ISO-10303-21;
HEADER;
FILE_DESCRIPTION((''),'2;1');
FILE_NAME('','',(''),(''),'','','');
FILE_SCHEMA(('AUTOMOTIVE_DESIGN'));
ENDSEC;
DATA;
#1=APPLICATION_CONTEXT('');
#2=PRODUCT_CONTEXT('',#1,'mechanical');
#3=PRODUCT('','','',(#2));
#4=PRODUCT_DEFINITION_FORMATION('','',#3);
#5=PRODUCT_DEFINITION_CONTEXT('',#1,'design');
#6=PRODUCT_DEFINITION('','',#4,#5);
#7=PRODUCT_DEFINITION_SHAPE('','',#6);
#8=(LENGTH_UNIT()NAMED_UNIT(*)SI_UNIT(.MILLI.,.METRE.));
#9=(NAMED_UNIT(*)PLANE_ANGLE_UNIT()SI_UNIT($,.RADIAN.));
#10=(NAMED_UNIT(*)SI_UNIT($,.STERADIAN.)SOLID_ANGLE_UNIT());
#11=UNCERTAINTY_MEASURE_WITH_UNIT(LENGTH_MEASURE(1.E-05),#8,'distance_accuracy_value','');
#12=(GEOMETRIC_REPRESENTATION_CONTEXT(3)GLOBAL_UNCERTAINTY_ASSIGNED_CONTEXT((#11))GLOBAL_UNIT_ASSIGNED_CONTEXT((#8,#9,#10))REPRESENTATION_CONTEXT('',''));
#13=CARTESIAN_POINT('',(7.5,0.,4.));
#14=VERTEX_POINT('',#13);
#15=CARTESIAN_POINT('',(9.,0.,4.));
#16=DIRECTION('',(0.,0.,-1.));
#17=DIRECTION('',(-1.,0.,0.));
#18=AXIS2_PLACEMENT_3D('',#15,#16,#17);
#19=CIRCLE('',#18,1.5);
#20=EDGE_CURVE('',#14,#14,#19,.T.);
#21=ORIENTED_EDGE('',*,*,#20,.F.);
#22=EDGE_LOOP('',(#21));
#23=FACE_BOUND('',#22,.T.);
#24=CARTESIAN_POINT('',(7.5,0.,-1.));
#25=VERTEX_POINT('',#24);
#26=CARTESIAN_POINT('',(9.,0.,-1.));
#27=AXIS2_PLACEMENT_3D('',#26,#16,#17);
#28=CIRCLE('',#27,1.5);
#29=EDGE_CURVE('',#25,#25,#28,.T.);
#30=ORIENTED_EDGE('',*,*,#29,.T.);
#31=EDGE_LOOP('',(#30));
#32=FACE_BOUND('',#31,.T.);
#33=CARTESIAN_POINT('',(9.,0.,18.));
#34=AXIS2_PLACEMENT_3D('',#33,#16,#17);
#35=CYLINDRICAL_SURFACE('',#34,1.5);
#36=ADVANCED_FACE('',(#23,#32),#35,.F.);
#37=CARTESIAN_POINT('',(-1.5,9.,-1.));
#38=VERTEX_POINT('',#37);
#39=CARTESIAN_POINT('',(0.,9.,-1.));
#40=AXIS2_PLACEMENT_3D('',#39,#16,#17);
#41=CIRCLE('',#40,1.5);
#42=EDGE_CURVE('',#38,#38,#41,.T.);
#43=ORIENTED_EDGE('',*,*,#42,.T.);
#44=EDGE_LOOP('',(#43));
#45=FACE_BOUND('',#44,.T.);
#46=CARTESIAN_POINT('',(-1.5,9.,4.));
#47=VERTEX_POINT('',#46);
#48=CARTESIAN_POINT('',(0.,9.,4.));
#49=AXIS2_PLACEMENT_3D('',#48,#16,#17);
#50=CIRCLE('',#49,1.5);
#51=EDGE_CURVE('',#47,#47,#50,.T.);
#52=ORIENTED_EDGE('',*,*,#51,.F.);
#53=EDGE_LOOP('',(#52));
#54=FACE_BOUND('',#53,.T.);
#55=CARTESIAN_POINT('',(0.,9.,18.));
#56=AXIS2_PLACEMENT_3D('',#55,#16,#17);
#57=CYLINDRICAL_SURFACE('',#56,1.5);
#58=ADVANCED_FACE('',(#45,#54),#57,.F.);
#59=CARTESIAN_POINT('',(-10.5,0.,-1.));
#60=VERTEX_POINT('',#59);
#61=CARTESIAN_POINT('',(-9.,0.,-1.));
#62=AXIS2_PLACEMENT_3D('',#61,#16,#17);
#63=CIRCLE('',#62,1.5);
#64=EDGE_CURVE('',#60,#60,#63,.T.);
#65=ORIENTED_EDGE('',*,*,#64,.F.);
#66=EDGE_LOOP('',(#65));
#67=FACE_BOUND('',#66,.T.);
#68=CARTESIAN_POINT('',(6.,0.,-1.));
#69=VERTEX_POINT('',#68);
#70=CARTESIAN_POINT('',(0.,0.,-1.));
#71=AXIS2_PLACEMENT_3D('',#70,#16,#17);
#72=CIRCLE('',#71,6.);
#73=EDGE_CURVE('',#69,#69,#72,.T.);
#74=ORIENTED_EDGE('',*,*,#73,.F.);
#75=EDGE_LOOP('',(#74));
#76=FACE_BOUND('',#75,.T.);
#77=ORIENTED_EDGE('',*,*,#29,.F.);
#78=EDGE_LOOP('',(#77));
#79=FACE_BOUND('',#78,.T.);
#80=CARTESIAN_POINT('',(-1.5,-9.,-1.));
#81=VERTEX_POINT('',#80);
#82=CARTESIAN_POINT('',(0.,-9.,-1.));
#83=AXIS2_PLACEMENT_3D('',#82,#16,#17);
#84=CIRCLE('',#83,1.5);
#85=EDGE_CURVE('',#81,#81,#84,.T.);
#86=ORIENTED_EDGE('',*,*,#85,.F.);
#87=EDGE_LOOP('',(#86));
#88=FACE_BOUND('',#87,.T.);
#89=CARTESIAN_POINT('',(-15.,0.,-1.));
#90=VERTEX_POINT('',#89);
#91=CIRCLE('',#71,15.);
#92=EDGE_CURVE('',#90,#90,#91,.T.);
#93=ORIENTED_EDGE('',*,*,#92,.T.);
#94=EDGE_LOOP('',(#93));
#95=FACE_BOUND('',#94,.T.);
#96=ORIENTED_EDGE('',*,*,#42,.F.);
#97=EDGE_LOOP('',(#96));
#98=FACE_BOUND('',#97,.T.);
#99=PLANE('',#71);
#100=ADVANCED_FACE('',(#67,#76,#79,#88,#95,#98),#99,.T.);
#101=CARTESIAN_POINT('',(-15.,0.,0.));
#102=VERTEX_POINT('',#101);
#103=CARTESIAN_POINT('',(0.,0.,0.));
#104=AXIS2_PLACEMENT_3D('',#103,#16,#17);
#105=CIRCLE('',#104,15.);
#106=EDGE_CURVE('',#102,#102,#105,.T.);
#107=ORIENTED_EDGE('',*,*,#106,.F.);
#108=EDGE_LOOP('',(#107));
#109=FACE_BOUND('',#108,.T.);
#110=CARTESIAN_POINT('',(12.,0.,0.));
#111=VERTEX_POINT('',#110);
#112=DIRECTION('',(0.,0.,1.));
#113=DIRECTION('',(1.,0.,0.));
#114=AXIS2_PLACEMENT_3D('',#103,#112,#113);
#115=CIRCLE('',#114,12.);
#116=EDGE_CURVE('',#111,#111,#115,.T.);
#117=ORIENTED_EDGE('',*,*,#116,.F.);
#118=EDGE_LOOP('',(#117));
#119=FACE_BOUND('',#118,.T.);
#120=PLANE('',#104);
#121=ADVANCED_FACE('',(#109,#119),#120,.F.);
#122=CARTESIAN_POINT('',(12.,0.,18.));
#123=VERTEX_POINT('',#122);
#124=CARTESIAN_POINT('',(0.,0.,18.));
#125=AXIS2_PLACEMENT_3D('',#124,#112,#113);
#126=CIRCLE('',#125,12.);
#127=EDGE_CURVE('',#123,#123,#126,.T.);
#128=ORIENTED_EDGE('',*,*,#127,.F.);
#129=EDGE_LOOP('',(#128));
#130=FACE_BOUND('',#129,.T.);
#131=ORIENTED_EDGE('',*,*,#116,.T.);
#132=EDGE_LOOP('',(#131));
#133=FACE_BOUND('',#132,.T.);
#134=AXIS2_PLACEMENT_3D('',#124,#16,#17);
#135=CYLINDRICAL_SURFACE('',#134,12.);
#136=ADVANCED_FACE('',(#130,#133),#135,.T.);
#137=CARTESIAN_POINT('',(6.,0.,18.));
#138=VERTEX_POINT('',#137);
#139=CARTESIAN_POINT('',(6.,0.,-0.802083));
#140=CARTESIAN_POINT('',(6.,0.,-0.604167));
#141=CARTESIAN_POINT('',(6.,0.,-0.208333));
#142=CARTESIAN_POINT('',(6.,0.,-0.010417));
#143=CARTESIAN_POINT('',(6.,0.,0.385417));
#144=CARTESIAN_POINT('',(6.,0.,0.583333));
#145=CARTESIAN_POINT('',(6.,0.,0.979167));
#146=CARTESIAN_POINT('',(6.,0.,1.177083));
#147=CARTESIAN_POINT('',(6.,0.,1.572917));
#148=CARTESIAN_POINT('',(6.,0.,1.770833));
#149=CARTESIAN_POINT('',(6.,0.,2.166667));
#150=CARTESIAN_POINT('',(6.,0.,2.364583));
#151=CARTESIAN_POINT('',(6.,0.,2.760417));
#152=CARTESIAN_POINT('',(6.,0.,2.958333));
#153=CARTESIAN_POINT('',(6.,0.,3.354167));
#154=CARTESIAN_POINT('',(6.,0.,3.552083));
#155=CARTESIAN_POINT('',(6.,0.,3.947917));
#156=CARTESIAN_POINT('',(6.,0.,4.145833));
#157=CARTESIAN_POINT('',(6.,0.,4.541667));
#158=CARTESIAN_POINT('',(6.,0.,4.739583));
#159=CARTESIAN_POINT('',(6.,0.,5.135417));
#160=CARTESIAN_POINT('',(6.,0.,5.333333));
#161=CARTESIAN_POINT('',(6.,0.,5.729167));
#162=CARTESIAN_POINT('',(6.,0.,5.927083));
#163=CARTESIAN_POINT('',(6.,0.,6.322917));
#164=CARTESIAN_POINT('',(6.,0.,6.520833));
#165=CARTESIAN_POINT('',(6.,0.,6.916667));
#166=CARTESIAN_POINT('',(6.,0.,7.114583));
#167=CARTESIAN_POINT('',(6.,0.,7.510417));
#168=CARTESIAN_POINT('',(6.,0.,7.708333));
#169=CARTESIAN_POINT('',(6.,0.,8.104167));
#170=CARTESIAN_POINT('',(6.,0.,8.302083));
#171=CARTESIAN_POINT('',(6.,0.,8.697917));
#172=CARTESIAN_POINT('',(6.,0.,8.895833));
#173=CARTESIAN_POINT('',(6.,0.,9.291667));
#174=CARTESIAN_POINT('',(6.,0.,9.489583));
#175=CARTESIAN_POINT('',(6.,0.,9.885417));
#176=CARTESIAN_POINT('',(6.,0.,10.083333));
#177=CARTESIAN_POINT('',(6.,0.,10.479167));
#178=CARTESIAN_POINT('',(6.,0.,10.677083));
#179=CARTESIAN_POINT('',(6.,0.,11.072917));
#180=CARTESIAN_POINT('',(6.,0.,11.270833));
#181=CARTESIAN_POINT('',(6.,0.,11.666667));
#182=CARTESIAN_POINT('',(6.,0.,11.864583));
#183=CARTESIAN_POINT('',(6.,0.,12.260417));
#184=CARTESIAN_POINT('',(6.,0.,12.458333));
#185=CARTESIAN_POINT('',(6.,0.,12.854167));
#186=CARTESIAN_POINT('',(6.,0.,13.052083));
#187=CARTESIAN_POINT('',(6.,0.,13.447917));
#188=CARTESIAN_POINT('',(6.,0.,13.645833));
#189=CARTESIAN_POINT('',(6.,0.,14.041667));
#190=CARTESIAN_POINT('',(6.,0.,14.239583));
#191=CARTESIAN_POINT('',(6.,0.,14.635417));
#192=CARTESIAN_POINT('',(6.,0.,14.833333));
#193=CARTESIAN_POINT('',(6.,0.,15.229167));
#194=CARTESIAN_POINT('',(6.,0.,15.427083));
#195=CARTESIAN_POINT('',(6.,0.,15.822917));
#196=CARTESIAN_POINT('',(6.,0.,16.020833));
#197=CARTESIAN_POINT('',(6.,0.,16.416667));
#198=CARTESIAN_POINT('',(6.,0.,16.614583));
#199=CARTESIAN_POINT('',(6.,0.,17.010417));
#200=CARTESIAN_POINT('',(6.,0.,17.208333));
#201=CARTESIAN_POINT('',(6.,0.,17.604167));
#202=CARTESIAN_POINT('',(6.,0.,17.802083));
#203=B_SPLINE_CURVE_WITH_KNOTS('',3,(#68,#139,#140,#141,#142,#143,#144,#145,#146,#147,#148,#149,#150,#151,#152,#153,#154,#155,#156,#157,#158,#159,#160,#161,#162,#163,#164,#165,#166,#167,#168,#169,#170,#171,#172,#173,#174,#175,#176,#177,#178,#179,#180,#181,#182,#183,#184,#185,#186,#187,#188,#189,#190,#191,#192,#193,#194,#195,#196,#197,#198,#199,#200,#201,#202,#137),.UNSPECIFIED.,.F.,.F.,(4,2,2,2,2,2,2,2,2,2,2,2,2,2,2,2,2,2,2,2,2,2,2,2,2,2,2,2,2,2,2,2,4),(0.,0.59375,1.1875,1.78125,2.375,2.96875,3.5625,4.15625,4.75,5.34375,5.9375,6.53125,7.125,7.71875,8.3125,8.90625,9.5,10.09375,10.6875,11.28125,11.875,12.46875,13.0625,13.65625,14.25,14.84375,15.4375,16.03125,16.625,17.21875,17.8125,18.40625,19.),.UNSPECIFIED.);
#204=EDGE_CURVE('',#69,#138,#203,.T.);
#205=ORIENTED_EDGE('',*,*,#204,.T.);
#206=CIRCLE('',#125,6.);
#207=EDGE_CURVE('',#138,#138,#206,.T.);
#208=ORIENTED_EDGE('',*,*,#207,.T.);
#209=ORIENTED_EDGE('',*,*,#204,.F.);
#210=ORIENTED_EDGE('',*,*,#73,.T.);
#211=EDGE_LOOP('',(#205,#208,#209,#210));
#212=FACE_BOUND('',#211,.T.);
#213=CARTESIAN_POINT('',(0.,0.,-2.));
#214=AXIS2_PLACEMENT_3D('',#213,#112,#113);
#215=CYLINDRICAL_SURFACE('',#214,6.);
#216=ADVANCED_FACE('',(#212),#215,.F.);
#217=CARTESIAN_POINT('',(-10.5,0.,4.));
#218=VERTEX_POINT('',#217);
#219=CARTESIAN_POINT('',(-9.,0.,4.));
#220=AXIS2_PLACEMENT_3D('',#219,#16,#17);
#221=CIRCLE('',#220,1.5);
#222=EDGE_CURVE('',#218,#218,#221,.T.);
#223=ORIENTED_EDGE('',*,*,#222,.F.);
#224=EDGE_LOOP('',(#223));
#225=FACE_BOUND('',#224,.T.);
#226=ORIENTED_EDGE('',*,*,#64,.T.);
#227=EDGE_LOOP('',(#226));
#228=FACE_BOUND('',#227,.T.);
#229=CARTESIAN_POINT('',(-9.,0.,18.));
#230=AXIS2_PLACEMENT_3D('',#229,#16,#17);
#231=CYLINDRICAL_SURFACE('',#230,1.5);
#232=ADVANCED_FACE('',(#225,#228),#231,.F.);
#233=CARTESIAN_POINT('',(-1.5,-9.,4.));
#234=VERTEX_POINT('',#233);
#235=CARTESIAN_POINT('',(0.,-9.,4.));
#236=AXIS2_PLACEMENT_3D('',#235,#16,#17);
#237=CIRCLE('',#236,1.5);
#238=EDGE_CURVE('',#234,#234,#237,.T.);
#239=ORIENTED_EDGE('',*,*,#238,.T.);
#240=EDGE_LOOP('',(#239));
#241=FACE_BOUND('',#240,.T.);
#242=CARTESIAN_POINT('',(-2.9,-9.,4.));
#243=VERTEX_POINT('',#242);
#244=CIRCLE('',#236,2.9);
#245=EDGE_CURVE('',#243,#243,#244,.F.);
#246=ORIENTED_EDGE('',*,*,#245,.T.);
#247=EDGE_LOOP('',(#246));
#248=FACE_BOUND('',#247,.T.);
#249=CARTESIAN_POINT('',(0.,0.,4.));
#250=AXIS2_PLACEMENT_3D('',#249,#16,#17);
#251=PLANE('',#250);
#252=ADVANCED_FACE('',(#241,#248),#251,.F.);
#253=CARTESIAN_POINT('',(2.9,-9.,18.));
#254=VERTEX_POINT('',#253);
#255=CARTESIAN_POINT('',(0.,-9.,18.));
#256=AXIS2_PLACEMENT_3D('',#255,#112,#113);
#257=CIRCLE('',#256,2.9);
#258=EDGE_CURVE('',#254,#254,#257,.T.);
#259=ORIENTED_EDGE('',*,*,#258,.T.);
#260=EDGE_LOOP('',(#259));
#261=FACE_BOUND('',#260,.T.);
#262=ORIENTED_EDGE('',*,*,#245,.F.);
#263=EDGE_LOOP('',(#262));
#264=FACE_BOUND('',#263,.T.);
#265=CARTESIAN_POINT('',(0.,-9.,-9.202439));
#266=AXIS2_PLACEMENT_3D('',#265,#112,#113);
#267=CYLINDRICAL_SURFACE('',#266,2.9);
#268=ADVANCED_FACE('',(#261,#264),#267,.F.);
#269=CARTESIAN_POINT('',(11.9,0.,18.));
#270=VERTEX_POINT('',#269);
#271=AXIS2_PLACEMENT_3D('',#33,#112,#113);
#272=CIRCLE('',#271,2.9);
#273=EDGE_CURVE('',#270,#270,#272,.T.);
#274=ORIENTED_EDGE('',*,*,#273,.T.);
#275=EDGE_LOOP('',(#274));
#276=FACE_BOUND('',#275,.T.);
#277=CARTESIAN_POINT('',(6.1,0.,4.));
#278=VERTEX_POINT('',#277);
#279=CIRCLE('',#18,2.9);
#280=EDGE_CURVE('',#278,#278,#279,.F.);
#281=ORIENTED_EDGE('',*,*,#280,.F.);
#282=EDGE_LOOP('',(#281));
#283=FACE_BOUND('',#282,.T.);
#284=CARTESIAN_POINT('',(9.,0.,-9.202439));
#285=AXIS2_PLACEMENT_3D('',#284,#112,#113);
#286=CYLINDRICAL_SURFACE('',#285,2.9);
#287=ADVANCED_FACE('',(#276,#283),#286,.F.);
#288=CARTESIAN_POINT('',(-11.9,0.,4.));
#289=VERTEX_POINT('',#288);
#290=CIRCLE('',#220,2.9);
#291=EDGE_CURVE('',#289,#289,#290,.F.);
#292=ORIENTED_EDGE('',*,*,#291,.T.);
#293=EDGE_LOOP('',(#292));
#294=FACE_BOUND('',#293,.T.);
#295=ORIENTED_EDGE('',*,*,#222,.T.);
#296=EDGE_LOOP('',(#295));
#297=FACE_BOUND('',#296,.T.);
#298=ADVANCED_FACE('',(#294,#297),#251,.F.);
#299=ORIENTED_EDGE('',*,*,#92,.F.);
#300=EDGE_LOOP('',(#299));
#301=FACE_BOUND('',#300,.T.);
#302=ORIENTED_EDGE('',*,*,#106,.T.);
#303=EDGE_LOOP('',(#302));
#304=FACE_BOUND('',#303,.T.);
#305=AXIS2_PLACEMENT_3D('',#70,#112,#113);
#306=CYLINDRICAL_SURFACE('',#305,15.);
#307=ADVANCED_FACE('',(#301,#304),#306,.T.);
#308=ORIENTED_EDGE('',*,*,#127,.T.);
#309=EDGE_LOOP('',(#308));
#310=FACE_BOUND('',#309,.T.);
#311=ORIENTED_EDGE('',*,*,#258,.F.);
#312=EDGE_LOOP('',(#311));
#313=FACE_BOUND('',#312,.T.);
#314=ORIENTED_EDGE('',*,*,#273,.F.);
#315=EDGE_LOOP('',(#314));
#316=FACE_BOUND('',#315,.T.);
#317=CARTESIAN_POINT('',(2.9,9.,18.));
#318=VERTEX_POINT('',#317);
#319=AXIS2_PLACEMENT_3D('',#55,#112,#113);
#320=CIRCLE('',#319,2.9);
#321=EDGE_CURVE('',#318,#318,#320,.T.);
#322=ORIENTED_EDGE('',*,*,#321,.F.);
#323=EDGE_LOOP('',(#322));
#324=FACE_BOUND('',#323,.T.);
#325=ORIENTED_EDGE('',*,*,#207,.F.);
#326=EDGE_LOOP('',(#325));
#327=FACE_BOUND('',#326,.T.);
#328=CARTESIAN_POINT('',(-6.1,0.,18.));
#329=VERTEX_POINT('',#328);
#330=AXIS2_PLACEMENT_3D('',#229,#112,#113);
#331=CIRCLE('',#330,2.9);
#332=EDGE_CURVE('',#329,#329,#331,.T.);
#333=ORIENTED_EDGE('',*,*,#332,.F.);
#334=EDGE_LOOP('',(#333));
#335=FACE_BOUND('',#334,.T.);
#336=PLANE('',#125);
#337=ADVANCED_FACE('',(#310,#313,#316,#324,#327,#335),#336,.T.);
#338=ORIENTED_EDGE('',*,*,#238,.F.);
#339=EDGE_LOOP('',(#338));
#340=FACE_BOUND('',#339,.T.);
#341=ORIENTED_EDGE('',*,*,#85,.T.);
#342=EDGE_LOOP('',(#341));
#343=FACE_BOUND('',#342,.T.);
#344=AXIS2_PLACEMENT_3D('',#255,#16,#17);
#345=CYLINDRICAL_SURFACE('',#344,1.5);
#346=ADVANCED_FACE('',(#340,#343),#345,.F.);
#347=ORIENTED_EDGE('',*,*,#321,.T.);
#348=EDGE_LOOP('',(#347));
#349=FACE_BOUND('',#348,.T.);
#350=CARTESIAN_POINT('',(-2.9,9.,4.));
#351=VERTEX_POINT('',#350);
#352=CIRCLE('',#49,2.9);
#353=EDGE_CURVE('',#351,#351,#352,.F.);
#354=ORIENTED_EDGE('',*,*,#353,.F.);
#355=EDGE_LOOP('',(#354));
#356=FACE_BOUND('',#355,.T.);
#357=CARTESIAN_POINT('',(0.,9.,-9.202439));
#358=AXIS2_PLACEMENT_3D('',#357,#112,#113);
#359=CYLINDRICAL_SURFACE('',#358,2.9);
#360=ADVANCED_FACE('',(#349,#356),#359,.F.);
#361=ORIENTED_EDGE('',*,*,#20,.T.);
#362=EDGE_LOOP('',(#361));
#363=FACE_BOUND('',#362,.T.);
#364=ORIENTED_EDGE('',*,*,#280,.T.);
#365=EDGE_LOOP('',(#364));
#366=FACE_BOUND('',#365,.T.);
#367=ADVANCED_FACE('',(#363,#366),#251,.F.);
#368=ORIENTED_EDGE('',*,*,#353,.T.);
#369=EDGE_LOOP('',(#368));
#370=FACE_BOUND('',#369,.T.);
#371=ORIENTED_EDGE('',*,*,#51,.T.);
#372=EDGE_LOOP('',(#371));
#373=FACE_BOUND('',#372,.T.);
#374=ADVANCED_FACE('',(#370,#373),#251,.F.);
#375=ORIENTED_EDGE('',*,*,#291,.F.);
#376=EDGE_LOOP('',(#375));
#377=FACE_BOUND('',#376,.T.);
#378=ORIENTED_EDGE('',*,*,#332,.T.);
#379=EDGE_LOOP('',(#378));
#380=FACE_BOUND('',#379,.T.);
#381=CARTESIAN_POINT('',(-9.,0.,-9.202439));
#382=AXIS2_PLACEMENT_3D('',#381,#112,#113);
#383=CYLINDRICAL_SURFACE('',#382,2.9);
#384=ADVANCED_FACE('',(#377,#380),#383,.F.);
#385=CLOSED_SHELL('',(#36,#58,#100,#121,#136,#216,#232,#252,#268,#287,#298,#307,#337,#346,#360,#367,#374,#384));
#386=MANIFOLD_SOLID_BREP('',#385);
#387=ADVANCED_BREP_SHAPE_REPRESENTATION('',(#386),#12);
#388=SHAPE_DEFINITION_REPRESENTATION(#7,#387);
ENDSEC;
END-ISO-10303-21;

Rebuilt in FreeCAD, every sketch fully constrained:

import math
import FreeCAD as App
import Part
import Sketcher

V = App.Vector
Q = App.Units.Quantity

doc = App.newDocument("Part")
body = doc.addObject("PartDesign::Body", "Body")

# Sketch on XY plane
sketch1 = body.newObject("Sketcher::SketchObject", "Sketch")
sketch1.AttachmentSupport = (doc.getObject("XY_Plane"), [""])
sketch1.MapMode = "FlatFace"
sketch1.addGeometry(Part.Circle(V(0, 0, 0), V(0, 0, 1), 12), False)
sketch1.addGeometry(Part.Circle(V(0, -9, 0), V(0, 0, 1), 1.5), False)
sketch1.addGeometry(Part.Circle(V(-9, 0, 0), V(0, 0, 1), 1.5), False)
sketch1.addGeometry(Part.Circle(V(9, 0, 0), V(0, 0, 1), 1.5), False)
sketch1.addGeometry(Part.Circle(V(0, 9, 0), V(0, 0, 1), 1.5), False)
sketch1.addConstraint(Sketcher.Constraint("Coincident", 0, 3, -1, 1))
sketch1.addConstraint(Sketcher.Constraint("Equal", 1, 2))
sketch1.addConstraint(Sketcher.Constraint("Equal", 2, 3))
sketch1.addConstraint(Sketcher.Constraint("Equal", 3, 4))
sketch1.addConstraint(Sketcher.Constraint("Symmetric", 2, 3, 3, 3, -1, 1))
sketch1.addConstraint(Sketcher.Constraint("Symmetric", 1, 3, 4, 3, -1, 1))
sketch1.addConstraint(Sketcher.Constraint("PointOnObject", 1, 3, -2))
sketch1.addConstraint(Sketcher.Constraint("PointOnObject", 2, 3, -1))
sketch1.addConstraint(Sketcher.Constraint("Diameter", 0, Q("24 mm")))
sketch1.addConstraint(Sketcher.Constraint("Diameter", 1, Q("3 mm")))
sketch1.addConstraint(Sketcher.Constraint("DistanceY", 1, 3, -1, 1, Q("9 mm")))
sketch1.addConstraint(Sketcher.Constraint("DistanceX", 2, 3, -1, 1, Q("9 mm")))
pad1 = body.newObject("PartDesign::Pad", "Pad")
pad1.Profile = sketch1
pad1.Length = 18

# Sketch on XY plane
sketch2 = body.newObject("Sketcher::SketchObject", "Sketch001")
sketch2.AttachmentSupport = (doc.getObject("XY_Plane"), [""])
sketch2.MapMode = "FlatFace"
sketch2.AttachmentOffset = App.Placement(V(0, 0, -1), App.Rotation())
sketch2.addGeometry(Part.Circle(V(0, 0, 0), V(0, 0, 1), 15), False)
sketch2.addGeometry(Part.Circle(V(0, -9, 0), V(0, 0, 1), 1.5), False)
sketch2.addGeometry(Part.Circle(V(9, 0, 0), V(0, 0, 1), 1.5), False)
sketch2.addGeometry(Part.Circle(V(-9, 0, 0), V(0, 0, 1), 1.5), False)
sketch2.addGeometry(Part.Circle(V(0, 9, 0), V(0, 0, 1), 1.5), False)
sketch2.addConstraint(Sketcher.Constraint("Coincident", 0, 3, -1, 1))
sketch2.addConstraint(Sketcher.Constraint("Equal", 1, 2))
sketch2.addConstraint(Sketcher.Constraint("Equal", 2, 3))
sketch2.addConstraint(Sketcher.Constraint("Equal", 3, 4))
sketch2.addConstraint(Sketcher.Constraint("Symmetric", 2, 3, 3, 3, -1, 1))
sketch2.addConstraint(Sketcher.Constraint("Symmetric", 1, 3, 4, 3, -1, 1))
sketch2.addConstraint(Sketcher.Constraint("PointOnObject", 1, 3, -2))
sketch2.addConstraint(Sketcher.Constraint("PointOnObject", 2, 3, -1))
sketch2.addConstraint(Sketcher.Constraint("Diameter", 0, Q("30 mm")))
sketch2.addConstraint(Sketcher.Constraint("Diameter", 1, Q("3 mm")))
sketch2.addConstraint(Sketcher.Constraint("DistanceY", 1, 3, -1, 1, Q("9 mm")))
sketch2.addConstraint(Sketcher.Constraint("DistanceX", -1, 1, 2, 3, Q("9 mm")))
pad2 = body.newObject("PartDesign::Pad", "Pad001")
pad2.Profile = sketch2
pad2.Length = 1

# Sketch on XY plane
sketch3 = body.newObject("Sketcher::SketchObject", "Sketch002")
sketch3.AttachmentSupport = (doc.getObject("XY_Plane"), [""])
sketch3.MapMode = "FlatFace"
sketch3.AttachmentOffset = App.Placement(V(0, 0, 18), App.Rotation())
sketch3.addGeometry(Part.Circle(V(0, 9, 0), V(0, 0, 1), 2.9), False)
sketch3.addGeometry(Part.Circle(V(9, 0, 0), V(0, 0, 1), 2.9), False)
sketch3.addGeometry(Part.Circle(V(0, -9, 0), V(0, 0, 1), 2.9), False)
sketch3.addGeometry(Part.Circle(V(-9, 0, 0), V(0, 0, 1), 2.9), False)
sketch3.addConstraint(Sketcher.Constraint("Equal", 0, 1))
sketch3.addConstraint(Sketcher.Constraint("Equal", 1, 2))
sketch3.addConstraint(Sketcher.Constraint("Equal", 2, 3))
sketch3.addConstraint(Sketcher.Constraint("Symmetric", 0, 3, 2, 3, -1, 1))
sketch3.addConstraint(Sketcher.Constraint("Symmetric", 1, 3, 3, 3, -1, 1))
sketch3.addConstraint(Sketcher.Constraint("PointOnObject", 0, 3, -2))
sketch3.addConstraint(Sketcher.Constraint("PointOnObject", 1, 3, -1))
sketch3.addConstraint(Sketcher.Constraint("Diameter", 0, Q("5.8 mm")))
sketch3.addConstraint(Sketcher.Constraint("DistanceY", -1, 1, 0, 3, Q("9 mm")))
sketch3.addConstraint(Sketcher.Constraint("DistanceX", -1, 1, 1, 3, Q("9 mm")))
pocket1 = body.newObject("PartDesign::Pocket", "Pocket")
pocket1.Profile = sketch3
pocket1.Length = 14

# Sketch on XY plane
sketch4 = body.newObject("Sketcher::SketchObject", "Sketch003")
sketch4.AttachmentSupport = (doc.getObject("XY_Plane"), [""])
sketch4.MapMode = "FlatFace"
sketch4.AttachmentOffset = App.Placement(V(0, 0, 18), App.Rotation())
sketch4.addGeometry(Part.LineSegment(V(1.5, 2, 0), V(-1.5, 2, 0)), False)
sketch4.addGeometry(Part.ArcOfCircle(Part.Circle(V(0, 0, 0), V(0, 0, 1), 2.5), math.radians(127), math.radians(360)), False)
sketch4.addGeometry(Part.ArcOfCircle(Part.Circle(V(0, 0, 0), V(0, 0, 1), 2.5), math.radians(0), math.radians(53)), False)
sketch4.addConstraint(Sketcher.Constraint("Coincident", 0, 2, 1, 1))
sketch4.addConstraint(Sketcher.Constraint("Tangent", 1, 2, 2, 1))
sketch4.addConstraint(Sketcher.Constraint("Coincident", 2, 2, 0, 1))
sketch4.addConstraint(Sketcher.Constraint("Horizontal", 0))
sketch4.addConstraint(Sketcher.Constraint("Coincident", 1, 3, -1, 1))
sketch4.addConstraint(Sketcher.Constraint("Equal", 1, 2))
sketch4.addConstraint(Sketcher.Constraint("PointOnObject", 1, 2, -1))
sketch4.addConstraint(Sketcher.Constraint("Radius", 1, Q("2.5 mm")))
sketch4.addConstraint(Sketcher.Constraint("DistanceX", 0, 2, 0, 1, Q("3 mm")))
pocket2 = body.newObject("PartDesign::Pocket", "Pocket001")
pocket2.Profile = sketch4
pocket2.Length = 23

# Sketch on XY plane
sketch5 = body.newObject("Sketcher::SketchObject", "Sketch004")
sketch5.AttachmentSupport = (doc.getObject("XY_Plane"), [""])
sketch5.MapMode = "FlatFace"
sketch5.AttachmentOffset = App.Placement(V(0, 0, 18), App.Rotation())
sketch5.addGeometry(Part.Circle(V(0, 0, 0), V(0, 0, 1), 2.5), False)
sketch5.addConstraint(Sketcher.Constraint("Coincident", 0, 3, -1, 1))
sketch5.addConstraint(Sketcher.Constraint("Diameter", 0, Q("5 mm")))
pocket3 = body.newObject("PartDesign::Pocket", "Pocket002")
pocket3.Profile = sketch5
pocket3.Length = 5

# Sketch on XY plane
sketch6 = body.newObject("Sketcher::SketchObject", "Sketch005")
sketch6.AttachmentSupport = (doc.getObject("XY_Plane"), [""])
sketch6.MapMode = "FlatFace"
sketch6.AttachmentOffset = App.Placement(V(0, 0, 18), App.Rotation())
sketch6.addGeometry(Part.Circle(V(0, 0, 0), V(0, 0, 1), 6), False)
sketch6.addConstraint(Sketcher.Constraint("Coincident", 0, 3, -1, 1))
sketch6.addConstraint(Sketcher.Constraint("Diameter", 0, Q("12 mm")))
pocket4 = body.newObject("PartDesign::Pocket", "Pocket003")
pocket4.Profile = sketch6
pocket4.Length = 20

doc.recompute()
